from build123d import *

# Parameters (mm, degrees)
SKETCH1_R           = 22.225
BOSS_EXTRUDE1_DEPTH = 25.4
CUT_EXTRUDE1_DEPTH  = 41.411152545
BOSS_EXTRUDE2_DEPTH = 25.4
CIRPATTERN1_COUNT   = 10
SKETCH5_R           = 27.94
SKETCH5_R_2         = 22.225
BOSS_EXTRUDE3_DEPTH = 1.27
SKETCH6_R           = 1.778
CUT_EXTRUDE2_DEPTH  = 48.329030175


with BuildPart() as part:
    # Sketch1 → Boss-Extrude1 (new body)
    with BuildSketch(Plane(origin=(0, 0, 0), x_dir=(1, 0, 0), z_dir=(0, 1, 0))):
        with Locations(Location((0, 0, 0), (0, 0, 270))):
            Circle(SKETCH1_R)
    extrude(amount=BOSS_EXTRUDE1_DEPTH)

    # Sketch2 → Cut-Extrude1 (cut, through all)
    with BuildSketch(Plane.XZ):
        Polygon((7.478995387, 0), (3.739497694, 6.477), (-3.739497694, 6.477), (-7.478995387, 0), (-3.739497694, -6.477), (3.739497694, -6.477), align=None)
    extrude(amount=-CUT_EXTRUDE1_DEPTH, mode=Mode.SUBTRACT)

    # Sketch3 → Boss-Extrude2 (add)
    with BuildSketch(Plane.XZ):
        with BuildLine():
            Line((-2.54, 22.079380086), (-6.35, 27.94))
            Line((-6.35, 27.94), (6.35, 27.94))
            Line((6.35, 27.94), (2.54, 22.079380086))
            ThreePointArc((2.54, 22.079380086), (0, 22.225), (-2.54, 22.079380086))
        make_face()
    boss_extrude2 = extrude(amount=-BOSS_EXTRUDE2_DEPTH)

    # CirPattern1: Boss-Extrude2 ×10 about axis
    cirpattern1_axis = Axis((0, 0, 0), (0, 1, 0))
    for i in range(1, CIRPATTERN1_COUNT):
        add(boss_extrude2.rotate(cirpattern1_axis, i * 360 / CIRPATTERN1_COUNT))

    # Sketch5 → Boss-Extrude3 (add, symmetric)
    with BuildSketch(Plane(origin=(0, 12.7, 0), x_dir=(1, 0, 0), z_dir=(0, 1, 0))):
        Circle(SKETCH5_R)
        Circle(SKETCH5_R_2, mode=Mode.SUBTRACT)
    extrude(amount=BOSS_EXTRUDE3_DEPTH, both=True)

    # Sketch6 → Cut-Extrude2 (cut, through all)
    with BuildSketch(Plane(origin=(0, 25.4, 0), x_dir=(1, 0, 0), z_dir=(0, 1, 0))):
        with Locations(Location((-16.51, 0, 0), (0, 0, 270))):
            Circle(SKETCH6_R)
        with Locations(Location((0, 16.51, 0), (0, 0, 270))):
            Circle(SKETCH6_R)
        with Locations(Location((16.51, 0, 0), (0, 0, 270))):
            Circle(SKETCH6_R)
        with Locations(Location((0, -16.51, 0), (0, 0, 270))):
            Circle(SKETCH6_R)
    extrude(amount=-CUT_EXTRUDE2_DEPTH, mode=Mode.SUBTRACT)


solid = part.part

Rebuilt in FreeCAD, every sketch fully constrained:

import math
import FreeCAD as App
import Part
import Sketcher

V = App.Vector
Q = App.Units.Quantity

doc = App.newDocument("Part")
body = doc.addObject("PartDesign::Body", "Body")

# Sketch on XZ plane
sketch1 = body.newObject("Sketcher::SketchObject", "Sketch")
sketch1.AttachmentSupport = (doc.getObject("XZ_Plane"), [""])
sketch1.MapMode = "FlatFace"
sketch1.addGeometry(Part.Circle(V(0, 0, 0), V(0, 0, 1), 22), False)
sketch1.addConstraint(Sketcher.Constraint("Coincident", 0, 3, -1, 1))
sketch1.addConstraint(Sketcher.Constraint("Diameter", 0, Q("1.75 in")))
pad1 = body.newObject("PartDesign::Pad", "Pad")
pad1.Profile = sketch1
pad1.Length = Q("1 in")
pad1.Reversed = True

# Sketch on XZ plane
sketch2 = body.newObject("Sketcher::SketchObject", "Sketch001")
sketch2.AttachmentSupport = (doc.getObject("XZ_Plane"), [""])
sketch2.MapMode = "FlatFace"
sketch2.addGeometry(Part.LineSegment(V(7, 0, 0), V(4, 6, 0)), False)
sketch2.addGeometry(Part.LineSegment(V(4, 6, 0), V(-4, 6, 0)), False)
sketch2.addGeometry(Part.LineSegment(V(-4, 6, 0), V(-7, 0, 0)), False)
sketch2.addGeometry(Part.LineSegment(V(-7, 0, 0), V(-4, -6, 0)), False)
sketch2.addGeometry(Part.LineSegment(V(-4, -6, 0), V(4, -6, 0)), False)
sketch2.addGeometry(Part.LineSegment(V(4, -6, 0), V(7, 0, 0)), False)
sketch2.addConstraint(Sketcher.Constraint("Coincident", 0, 2, 1, 1))
sketch2.addConstraint(Sketcher.Constraint("Coincident", 1, 2, 2, 1))
sketch2.addConstraint(Sketcher.Constraint("Coincident", 2, 2, 3, 1))
sketch2.addConstraint(Sketcher.Constraint("Coincident", 3, 2, 4, 1))
sketch2.addConstraint(Sketcher.Constraint("Coincident", 4, 2, 5, 1))
sketch2.addConstraint(Sketcher.Constraint("Coincident", 5, 2, 0, 1))
sketch2.addConstraint(Sketcher.Constraint("Horizontal", 1))
sketch2.addConstraint(Sketcher.Constraint("Horizontal", 4))
sketch2.addConstraint(Sketcher.Constraint("Symmetric", 0, 2, 3, 2, -1, 1))
sketch2.addConstraint(Sketcher.Constraint("Symmetric", 2, 2, 5, 2, -1, 1))
sketch2.addConstraint(Sketcher.Constraint("PointOnObject", 2, 2, -1))
sketch2.addConstraint(Sketcher.Constraint("Parallel", 2, 5))
sketch2.addConstraint(Sketcher.Constraint("Vertical", 1, 2, 3, 2))
sketch2.addConstraint(Sketcher.Constraint("Angle", 0, Q("120 deg")))
sketch2.addConstraint(Sketcher.Constraint("DistanceY", 3, 2, 1, 2, Q("0.51 in")))
sketch2.addConstraint(Sketcher.Constraint("DistanceX", 1, 2, 1, 1, Q("7.478995 mm")))
pocket1 = body.newObject("PartDesign::Pocket", "Pocket")
pocket1.Profile = sketch2
pocket1.Type = "ThroughAll"

# Sketch on XZ plane
sketch3 = body.newObject("Sketcher::SketchObject", "Sketch002")
sketch3.AttachmentSupport = (doc.getObject("XZ_Plane"), [""])
sketch3.MapMode = "FlatFace"
sketch3.addGeometry(Part.LineSegment(V(-6, 28, 0), V(-3, 22, 0)), False)
sketch3.addGeometry(Part.ArcOfCircle(Part.Circle(V(0, 0, 0), V(0, 0, 1), 22), math.radians(83.44), math.radians(96.56)), False)
sketch3.addGeometry(Part.LineSegment(V(3, 22, 0), V(6, 28, 0)), False)
sketch3.addGeometry(Part.LineSegment(V(6, 28, 0), V(-6, 28, 0)), False)
sketch3.addConstraint(Sketcher.Constraint("Coincident", 0, 2, 1, 2))
sketch3.addConstraint(Sketcher.Constraint("Coincident", 1, 1, 2, 1))
sketch3.addConstraint(Sketcher.Constraint("Coincident", 2, 2, 3, 1))
sketch3.addConstraint(Sketcher.Constraint("Coincident", 3, 2, 0, 1))
sketch3.addConstraint(Sketcher.Constraint("Horizontal", 3))
sketch3.addConstraint(Sketcher.Constraint("Coincident", 1, 3, -1, 1))
sketch3.addConstraint(Sketcher.Constraint("Horizontal", 0, 2, 1, 1))
sketch3.addConstraint(Sketcher.Constraint("Equal", 0, 2))
sketch3.addConstraint(Sketcher.Constraint("DistanceX", 3, 2, 3, 1, Q("0.5 in")))
sketch3.addConstraint(Sketcher.Constraint("Radius", 1, Q("0.875 in")))
sketch3.addConstraint(Sketcher.Constraint("DistanceX", 0, 2, -1, 1, Q("0.1 in")))
sketch3.addConstraint(Sketcher.Constraint("DistanceY", -1, 1, 2, 2, Q("1.1 in")))
pad2 = body.newObject("PartDesign::Pad", "Pad001")
pad2.Profile = sketch3
pad2.Length = Q("1 in")
pad2.Reversed = True
doc.recompute()

polarpattern = body.newObject("PartDesign::PolarPattern", "PolarPattern")
polarpattern.Originals = [pad2]
polarpattern.Axis = (doc.getObject("Y_Axis"), [""])
polarpattern.Angle = 360
polarpattern.Occurrences = 10
body.Tip = polarpattern

# Sketch on XZ plane
sketch4 = body.newObject("Sketcher::SketchObject", "Sketch003")
sketch4.AttachmentSupport = (doc.getObject("XZ_Plane"), [""])
sketch4.MapMode = "FlatFace"
sketch4.AttachmentOffset = App.Placement(V(0, 0, -0.5 * 25.4), App.Rotation())
sketch4.addGeometry(Part.Circle(V(0, 0, 0), V(0, 0, 1), 28), False)
sketch4.addGeometry(Part.Circle(V(0, 0, 0), V(0, 0, 1), 22), False)
sketch4.addConstraint(Sketcher.Constraint("Coincident", 0, 3, -1, 1))
sketch4.addConstraint(Sketcher.Constraint("Coincident", 1, 3, -1, 1))
sketch4.addConstraint(Sketcher.Constraint("Diameter", 0, Q("2.2 in")))
sketch4.addConstraint(Sketcher.Constraint("Diameter", 1, Q("1.75 in")))
pad3 = body.newObject("PartDesign::Pad", "Pad002")
pad3.Profile = sketch4
pad3.Length = Q("0.1 in")
pad3.Midplane = True

# Sketch on XZ plane
sketch5 = body.newObject("Sketcher::SketchObject", "Sketch004")
sketch5.AttachmentSupport = (doc.getObject("XZ_Plane"), [""])
sketch5.MapMode = "FlatFace"
sketch5.AttachmentOffset = App.Placement(V(0, 0, -1 * 25.4), App.Rotation())
sketch5.addGeometry(Part.Circle(V(-16.5, 0, 0), V(0, 0, 1), 1.8), False)
sketch5.addGeometry(Part.Circle(V(0, -16.5, 0), V(0, 0, 1), 1.8), False)
sketch5.addGeometry(Part.Circle(V(16.5, 0, 0), V(0, 0, 1), 1.8), False)
sketch5.addGeometry(Part.Circle(V(0, 16.5, 0), V(0, 0, 1), 1.8), False)
sketch5.addConstraint(Sketcher.Constraint("Equal", 0, 1))
sketch5.addConstraint(Sketcher.Constraint("Equal", 1, 2))
sketch5.addConstraint(Sketcher.Constraint("Equal", 2, 3))
sketch5.addConstraint(Sketcher.Constraint("Symmetric", 0, 3, 2, 3, -1, 1))
sketch5.addConstraint(Sketcher.Constraint("Symmetric", 1, 3, 3, 3, -1, 1))
sketch5.addConstraint(Sketcher.Constraint("PointOnObject", 0, 3, -1))
sketch5.addConstraint(Sketcher.Constraint("PointOnObject", 1, 3, -2))
sketch5.addConstraint(Sketcher.Constraint("Diameter", 0, Q("0.14 in")))
sketch5.addConstraint(Sketcher.Constraint("DistanceX", 0, 3, 2, 3, Q("1.3 in")))
sketch5.addConstraint(Sketcher.Constraint("DistanceY", 1, 3, 3, 3, Q("1.3 in")))
pocket2 = body.newObject("PartDesign::Pocket", "Pocket001")
pocket2.Profile = sketch5
pocket2.Type = "ThroughAll"
pocket2.Reversed = True

doc.recompute()
